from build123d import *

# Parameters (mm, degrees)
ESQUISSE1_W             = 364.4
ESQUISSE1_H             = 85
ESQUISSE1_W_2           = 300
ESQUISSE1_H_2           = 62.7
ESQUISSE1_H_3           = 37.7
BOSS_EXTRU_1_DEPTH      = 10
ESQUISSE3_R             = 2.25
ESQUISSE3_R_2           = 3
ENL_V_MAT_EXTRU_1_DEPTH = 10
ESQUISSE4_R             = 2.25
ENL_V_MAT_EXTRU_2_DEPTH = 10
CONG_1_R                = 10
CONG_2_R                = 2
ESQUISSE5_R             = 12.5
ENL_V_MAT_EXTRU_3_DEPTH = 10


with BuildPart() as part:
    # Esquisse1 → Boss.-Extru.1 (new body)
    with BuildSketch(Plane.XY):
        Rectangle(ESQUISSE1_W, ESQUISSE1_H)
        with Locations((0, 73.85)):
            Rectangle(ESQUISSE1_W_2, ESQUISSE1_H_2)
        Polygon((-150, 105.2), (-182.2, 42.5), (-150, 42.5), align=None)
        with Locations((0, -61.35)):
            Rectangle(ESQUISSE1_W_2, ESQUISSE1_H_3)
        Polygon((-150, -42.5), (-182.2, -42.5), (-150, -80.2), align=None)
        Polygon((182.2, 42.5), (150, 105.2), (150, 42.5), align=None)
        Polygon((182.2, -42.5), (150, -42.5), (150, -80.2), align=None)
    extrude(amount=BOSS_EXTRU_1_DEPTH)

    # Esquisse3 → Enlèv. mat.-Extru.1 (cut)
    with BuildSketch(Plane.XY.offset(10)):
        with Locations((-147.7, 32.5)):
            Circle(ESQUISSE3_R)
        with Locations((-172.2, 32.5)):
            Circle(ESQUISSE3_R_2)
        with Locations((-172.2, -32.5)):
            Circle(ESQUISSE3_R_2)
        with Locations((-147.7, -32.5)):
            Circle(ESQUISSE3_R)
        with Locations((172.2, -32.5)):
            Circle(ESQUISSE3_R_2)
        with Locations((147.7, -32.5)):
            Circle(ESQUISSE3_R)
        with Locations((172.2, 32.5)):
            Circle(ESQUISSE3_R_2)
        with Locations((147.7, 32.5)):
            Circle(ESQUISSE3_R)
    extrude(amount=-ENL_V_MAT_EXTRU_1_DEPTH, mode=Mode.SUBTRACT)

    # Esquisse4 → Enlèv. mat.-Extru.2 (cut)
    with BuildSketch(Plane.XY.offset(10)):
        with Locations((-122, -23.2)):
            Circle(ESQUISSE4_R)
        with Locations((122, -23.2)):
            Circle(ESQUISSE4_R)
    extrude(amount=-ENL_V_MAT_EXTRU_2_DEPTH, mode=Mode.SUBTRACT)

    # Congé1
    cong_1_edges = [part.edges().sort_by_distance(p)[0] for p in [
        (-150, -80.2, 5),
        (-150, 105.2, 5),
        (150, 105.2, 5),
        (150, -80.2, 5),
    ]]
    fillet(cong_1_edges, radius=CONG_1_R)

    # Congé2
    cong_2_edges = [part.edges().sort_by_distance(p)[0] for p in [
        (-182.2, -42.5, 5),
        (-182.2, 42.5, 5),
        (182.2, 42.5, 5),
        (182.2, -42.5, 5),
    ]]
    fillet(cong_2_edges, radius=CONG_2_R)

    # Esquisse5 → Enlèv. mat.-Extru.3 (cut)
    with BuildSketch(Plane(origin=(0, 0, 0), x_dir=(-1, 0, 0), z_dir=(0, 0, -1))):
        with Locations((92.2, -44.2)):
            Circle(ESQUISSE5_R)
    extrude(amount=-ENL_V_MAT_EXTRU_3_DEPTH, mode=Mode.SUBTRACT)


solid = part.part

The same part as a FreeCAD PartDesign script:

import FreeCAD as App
import Part
import Sketcher
from FreeCAD import Vector


def edges_at(feature, points):
    """Names of the edges that pass closest to the given points."""
    edges = feature.Shape.Edges
    near = lambda p: min(range(len(edges)), key=lambda i: edges[i].distToShape(Part.Vertex(*p))[0])
    return sorted({f"Edge{near(p) + 1}" for p in points})


def add_polygon(sketch, points):
    """Adds a closed chain of lines whose ends are joined by coincident constraints."""
    first, n = sketch.GeometryCount, len(points)
    for a, b in zip(points, points[1:] + points[:1]):
        sketch.addGeometry(Part.LineSegment(App.Vector(*a, 0), App.Vector(*b, 0)), False)
    for i in range(n):
        sketch.addConstraint(Sketcher.Constraint("Coincident", first + i, 2, first + (i + 1) % n, 1))

doc = App.newDocument("Part")
params = doc.addObject("Spreadsheet::Sheet", "Params")
for row, (alias, value) in enumerate([
    ("sketch1_width", "300 mm"),
    ("sketch1_height", "85 mm"),
    ("pad1_length", "10 mm"),
    ("sketch2_diameter", "6 mm"),
    ("sketch2_diameter2", "4.5 mm"),
    ("pocket1_length", "10 mm"),
    ("sketch3_diameter", "4.5 mm"),
    ("pocket2_length", "10 mm"),
    ("fillet_radius", "10 mm"),
    ("fillet2_radius", "2 mm"),
    ("sketch4_diameter", "25 mm"),
    ("pocket3_length", "10 mm"),
], start=1):
    params.set(f"A{row}", alias)
    params.set(f"B{row}", "=" + value)
    params.setAlias(f"B{row}", alias)

body = doc.addObject("PartDesign::Body", "Body")

# Sketch on XY plane
sketch1 = doc.addObject("Sketcher::SketchObject", "Sketch")
body.addObject(sketch1)
sketch1.AttachmentSupport = (doc.XY_Plane, [""])
sketch1.MapMode = "FlatFace"
add_polygon(sketch1, [(-182, 42), (-182, -42), (-150, -80), (150, -80), (182, -42), (182, 42), (150, 105), (-150, 105)])  # lines 0-7
sketch1.addConstraint([
    Sketcher.Constraint("Vertical", 0),
    Sketcher.Constraint("Horizontal", 2),
    Sketcher.Constraint("Vertical", 4),
    Sketcher.Constraint("Horizontal", 6),
    Sketcher.Constraint("Symmetric", 0, 2, 4, 2, -1, 1),
    Sketcher.Constraint("Horizontal", 0, 2, 3, 2),
    Sketcher.Constraint("Horizontal", 4, 2, 7, 2),
    Sketcher.Constraint("Vertical", 2, 2, 5, 2),
    Sketcher.Constraint("Vertical", 1, 2, 6, 2),
    Sketcher.Constraint("Equal", 1, 3),
    Sketcher.Constraint("DistanceX", 2, 1, 2, 2, 300.0),
    Sketcher.Constraint("DistanceY", 0, 2, 0, 1, 85.0),
    Sketcher.Constraint("DistanceX", 0, 2, -1, 1, 182.2),
    Sketcher.Constraint("DistanceY", 1, 2, -1, 1, 80.2),
    Sketcher.Constraint("DistanceY", -1, 1, 5, 2, 105.2),
])
sketch1.setExpression("Constraints[18]", "Params.sketch1_width")
sketch1.setExpression("Constraints[19]", "Params.sketch1_height")
pad1 = doc.addObject("PartDesign::Pad", "Pad")
body.addObject(pad1)
pad1.Profile = sketch1
pad1.setExpression("Length", "Params.pad1_length")

# Sketch on XY plane
sketch2 = doc.addObject("Sketcher::SketchObject", "Sketch001")
body.addObject(sketch2)
sketch2.AttachmentSupport = (doc.XY_Plane, [""])
sketch2.MapMode = "FlatFace"
sketch2.AttachmentOffset = App.Placement(Vector(0, 0, 10), App.Rotation())
sketch2.addGeometry([
    Part.Circle(Vector(-147.7, 32.5, 0), Vector(0, 0, 1), 2.2),  # 0
    Part.Circle(Vector(-172.2, 32.5, 0), Vector(0, 0, 1), 3),  # 1
    Part.Circle(Vector(-172.2, -32.5, 0), Vector(0, 0, 1), 3),  # 2
    Part.Circle(Vector(-147.7, -32.5, 0), Vector(0, 0, 1), 2.2),  # 3
    Part.Circle(Vector(172.2, -32.5, 0), Vector(0, 0, 1), 3),  # 4
    Part.Circle(Vector(147.7, -32.5, 0), Vector(0, 0, 1), 2.2),  # 5
    Part.Circle(Vector(172.2, 32.5, 0), Vector(0, 0, 1), 3),  # 6
    Part.Circle(Vector(147.7, 32.5, 0), Vector(0, 0, 1), 2.2),  # 7
], False)
sketch2.addConstraint([
    Sketcher.Constraint("Equal", 1, 2),
    Sketcher.Constraint("Equal", 0, 3),
    Sketcher.Constraint("Equal", 2, 4),
    Sketcher.Constraint("Equal", 3, 5),
    Sketcher.Constraint("Equal", 4, 6),
    Sketcher.Constraint("Equal", 5, 7),
    Sketcher.Constraint("Symmetric", 1, 3, 4, 3, -1, 1),
    Sketcher.Constraint("Symmetric", 0, 3, 5, 3, -1, 1),
    Sketcher.Constraint("Symmetric", 2, 3, 6, 3, -1, 1),
    Sketcher.Constraint("Symmetric", 3, 3, 7, 3, -1, 1),
    Sketcher.Constraint("Symmetric", 2, 3, 4, 3, -2),
    Sketcher.Constraint("Symmetric", 3, 3, 5, 3, -2),
    Sketcher.Constraint("Horizontal", 0, 3, 1, 3),
    Sketcher.Constraint("Diameter", 1, 6.0),
    Sketcher.Constraint("Diameter", 0, 4.5),
    Sketcher.Constraint("DistanceY", 2, 3, 1, 3, 65.0),
    Sketcher.Constraint("DistanceX", 0, 3, -1, 1, 147.7),
    Sketcher.Constraint("DistanceX", 1, 3, -1, 1, 172.2),
])
sketch2.setExpression("Constraints[13]", "Params.sketch2_diameter")
sketch2.setExpression("Constraints[14]", "Params.sketch2_diameter2")
pocket1 = doc.addObject("PartDesign::Pocket", "Pocket")
body.addObject(pocket1)
pocket1.Profile = sketch2
pocket1.setExpression("Length", "Params.pocket1_length")

# Sketch on XY plane
sketch3 = doc.addObject("Sketcher::SketchObject", "Sketch002")
body.addObject(sketch3)
sketch3.AttachmentSupport = (doc.XY_Plane, [""])
sketch3.MapMode = "FlatFace"
sketch3.AttachmentOffset = App.Placement(Vector(0, 0, 10), App.Rotation())
sketch3.addGeometry([
    Part.Circle(Vector(-122, -23.2, 0), Vector(0, 0, 1), 2.2),
    Part.Circle(Vector(122, -23.2, 0), Vector(0, 0, 1), 2.2),
], False)
sketch3.addConstraint([
    Sketcher.Constraint("Equal", 0, 1),
    Sketcher.Constraint("Symmetric", 0, 3, 1, 3, -2),
    Sketcher.Constraint("Diameter", 0, 4.5),
    Sketcher.Constraint("DistanceX", 0, 3, -1, 1, 122.0),
    Sketcher.Constraint("DistanceY", 0, 3, -1, 1, 23.2),
])
sketch3.setExpression("Constraints[2]", "Params.sketch3_diameter")
pocket2 = doc.addObject("PartDesign::Pocket", "Pocket001")
body.addObject(pocket2)
pocket2.Profile = sketch3
pocket2.setExpression("Length", "Params.pocket2_length")
doc.recompute()

fillet = doc.addObject("PartDesign::Fillet", "Fillet")
body.addObject(fillet)
fillet.Base = (pocket2, edges_at(pocket2, [
    (-150, -80.2, 5),
    (-150, 105.2, 5),
    (150, 105.2, 5),
    (150, -80.2, 5),
]))
fillet.setExpression("Radius", "Params.fillet_radius")
doc.recompute()

fillet2 = doc.addObject("PartDesign::Fillet", "Fillet001")
body.addObject(fillet2)
fillet2.Base = (fillet, edges_at(fillet, [
    (-182.2, -42.5, 5),
    (-182.2, 42.5, 5),
    (182.2, 42.5, 5),
    (182.2, -42.5, 5),
]))
fillet2.setExpression("Radius", "Params.fillet2_radius")

# Sketch on XY plane
sketch4 = doc.addObject("Sketcher::SketchObject", "Sketch003")
body.addObject(sketch4)
sketch4.AttachmentSupport = (doc.XY_Plane, [""])
sketch4.MapMode = "FlatFace"
sketch4.addGeometry(Part.Circle(Vector(-92, -44, 0), Vector(0, 0, 1), 12), False)
sketch4.addConstraint([
    Sketcher.Constraint("Diameter", 0, 25.0),
    Sketcher.Constraint("DistanceX", 0, 3, -1, 1, 92.2),
    Sketcher.Constraint("DistanceY", 0, 3, -1, 1, 44.2),
])
sketch4.setExpression("Constraints[0]", "Params.sketch4_diameter")
pocket3 = doc.addObject("PartDesign::Pocket", "Pocket002")
body.addObject(pocket3)
pocket3.Profile = sketch4
pocket3.setExpression("Length", "Params.pocket3_length")
pocket3.Reversed = True

doc.recompute()
